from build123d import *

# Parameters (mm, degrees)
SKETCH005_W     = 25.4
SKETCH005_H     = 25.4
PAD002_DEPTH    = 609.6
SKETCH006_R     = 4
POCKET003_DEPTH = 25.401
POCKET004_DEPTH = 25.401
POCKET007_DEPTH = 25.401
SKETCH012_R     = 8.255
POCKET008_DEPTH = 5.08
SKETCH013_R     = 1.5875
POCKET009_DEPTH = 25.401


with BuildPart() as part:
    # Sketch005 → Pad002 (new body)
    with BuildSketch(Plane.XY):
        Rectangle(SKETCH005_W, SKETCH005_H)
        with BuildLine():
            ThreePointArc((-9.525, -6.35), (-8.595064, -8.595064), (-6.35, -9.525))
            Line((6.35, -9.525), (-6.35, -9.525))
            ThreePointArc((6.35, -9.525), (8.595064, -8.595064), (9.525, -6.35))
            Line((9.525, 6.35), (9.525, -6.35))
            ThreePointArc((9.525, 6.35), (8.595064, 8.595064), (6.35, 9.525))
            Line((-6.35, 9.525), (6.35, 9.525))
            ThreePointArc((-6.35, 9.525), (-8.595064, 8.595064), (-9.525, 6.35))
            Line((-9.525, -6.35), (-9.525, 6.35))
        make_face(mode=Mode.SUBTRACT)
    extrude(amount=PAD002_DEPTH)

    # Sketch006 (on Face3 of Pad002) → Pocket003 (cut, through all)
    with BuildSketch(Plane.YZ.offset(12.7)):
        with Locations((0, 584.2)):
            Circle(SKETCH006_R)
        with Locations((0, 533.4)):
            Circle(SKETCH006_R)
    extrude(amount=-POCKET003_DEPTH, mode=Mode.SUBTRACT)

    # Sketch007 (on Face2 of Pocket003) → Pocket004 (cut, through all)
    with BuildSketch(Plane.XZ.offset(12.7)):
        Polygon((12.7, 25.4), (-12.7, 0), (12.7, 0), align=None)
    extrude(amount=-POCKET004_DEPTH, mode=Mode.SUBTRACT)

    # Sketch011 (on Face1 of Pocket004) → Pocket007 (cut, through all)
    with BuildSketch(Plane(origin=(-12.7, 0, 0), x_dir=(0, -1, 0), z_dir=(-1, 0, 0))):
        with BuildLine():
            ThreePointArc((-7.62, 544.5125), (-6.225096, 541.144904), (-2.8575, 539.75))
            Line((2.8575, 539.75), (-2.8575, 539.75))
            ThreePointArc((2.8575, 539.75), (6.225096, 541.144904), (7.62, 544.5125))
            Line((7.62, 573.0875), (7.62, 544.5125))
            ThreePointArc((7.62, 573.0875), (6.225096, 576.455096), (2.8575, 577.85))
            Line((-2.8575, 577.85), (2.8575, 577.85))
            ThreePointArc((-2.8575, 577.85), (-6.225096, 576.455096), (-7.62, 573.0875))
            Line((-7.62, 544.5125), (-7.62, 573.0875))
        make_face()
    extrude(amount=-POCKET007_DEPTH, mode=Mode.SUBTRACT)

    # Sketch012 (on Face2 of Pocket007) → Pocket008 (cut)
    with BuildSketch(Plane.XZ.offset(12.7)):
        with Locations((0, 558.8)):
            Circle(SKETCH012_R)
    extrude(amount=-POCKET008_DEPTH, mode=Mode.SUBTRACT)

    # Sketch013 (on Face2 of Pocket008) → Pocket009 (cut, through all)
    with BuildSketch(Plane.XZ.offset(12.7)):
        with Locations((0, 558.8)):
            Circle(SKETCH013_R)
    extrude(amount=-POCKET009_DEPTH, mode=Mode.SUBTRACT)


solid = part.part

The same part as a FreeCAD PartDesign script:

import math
import FreeCAD as App
import Part
import Sketcher
Q = App.Units.Quantity


def add_polygon(sketch, points):
    """Adds a closed chain of lines whose ends are joined by coincident constraints."""
    first, n = sketch.GeometryCount, len(points)
    for a, b in zip(points, points[1:] + points[:1]):
        sketch.addGeometry(Part.LineSegment(App.Vector(*a, 0), App.Vector(*b, 0)), False)
    for i in range(n):
        sketch.addConstraint(Sketcher.Constraint("Coincident", first + i, 2, first + (i + 1) % n, 1))

doc = App.newDocument("Part")
params = doc.addObject("Spreadsheet::Sheet", "Params")
for row, (alias, value) in enumerate([
    ("sketch1_width", "1 in"),
    ("sketch1_width2", "0.5 in"),
    ("sketch1_radius", "0.125 in"),
    ("pad1_length", "24 in"),
    ("sketch3_width", "1 in"),
    ("sketch4_radius", "0.1875 in"),
    ("sketch4_height", "1.125 in"),
    ("sketch5_diameter", "0.65 in"),
    ("pocket4_length", "0.2 in"),
    ("sketch6_diameter", "0.125 in"),
], start=1):
    params.set(f"A{row}", alias)
    params.set(f"B{row}", "=" + value)
    params.setAlias(f"B{row}", alias)

body = doc.addObject("PartDesign::Body", "Body")

# Sketch on XY plane
sketch1 = body.newObject("Sketcher::SketchObject", "Sketch")
sketch1.AttachmentSupport = (doc.getObject("XY_Plane"), [""])
sketch1.MapMode = "FlatFace"
add_polygon(sketch1, [(-12.7, 12.7), (-12.7, -12.7), (12.7, -12.7), (12.7, 12.7)])  # lines 0-3
sketch1.addGeometry(Part.ArcOfCircle(Part.Circle(App.Vector(-6.3, -6.3, 0), App.Vector(0, 0, 1), 3.2), math.radians(-180), math.radians(-90)), False)  # 4
sketch1.addGeometry(Part.LineSegment(App.Vector(-9.5, -6.3, 0), App.Vector(-9.5, 6.3, 0)), False)  # 5
sketch1.addGeometry(Part.ArcOfCircle(Part.Circle(App.Vector(-6.3, 6.3, 0), App.Vector(0, 0, 1), 3.2), math.radians(90), math.radians(180)), False)  # 6
sketch1.addGeometry(Part.LineSegment(App.Vector(-6.3, 9.5, 0), App.Vector(6.3, 9.5, 0)), False)  # 7
sketch1.addGeometry(Part.ArcOfCircle(Part.Circle(App.Vector(6.3, 6.3, 0), App.Vector(0, 0, 1), 3.2), math.radians(0), math.radians(90)), False)  # 8
sketch1.addGeometry(Part.LineSegment(App.Vector(9.5, 6.3, 0), App.Vector(9.5, -6.3, 0)), False)  # 9
sketch1.addGeometry(Part.ArcOfCircle(Part.Circle(App.Vector(6.3, -6.3, 0), App.Vector(0, 0, 1), 3.2), math.radians(-90), math.radians(0)), False)  # 10
sketch1.addGeometry(Part.LineSegment(App.Vector(6.3, -9.5, 0), App.Vector(-6.3, -9.5, 0)), False)  # 11
sketch1.addConstraint(Sketcher.Constraint("Tangent", 4, 1, 5, 1))
sketch1.addConstraint(Sketcher.Constraint("Tangent", 5, 2, 6, 2))
sketch1.addConstraint(Sketcher.Constraint("Tangent", 6, 1, 7, 1))
sketch1.addConstraint(Sketcher.Constraint("Tangent", 7, 2, 8, 2))
sketch1.addConstraint(Sketcher.Constraint("Tangent", 8, 1, 9, 1))
sketch1.addConstraint(Sketcher.Constraint("Tangent", 9, 2, 10, 2))
sketch1.addConstraint(Sketcher.Constraint("Tangent", 10, 1, 11, 1))
sketch1.addConstraint(Sketcher.Constraint("Tangent", 11, 2, 4, 2))
sketch1.addConstraint(Sketcher.Constraint("Vertical", 0))
sketch1.addConstraint(Sketcher.Constraint("Horizontal", 1))
sketch1.addConstraint(Sketcher.Constraint("Vertical", 2))
sketch1.addConstraint(Sketcher.Constraint("Horizontal", 3))
sketch1.addConstraint(Sketcher.Constraint("Vertical", 5))
sketch1.addConstraint(Sketcher.Constraint("Horizontal", 7))
sketch1.addConstraint(Sketcher.Constraint("Vertical", 9))
sketch1.addConstraint(Sketcher.Constraint("Horizontal", 11))
sketch1.addConstraint(Sketcher.Constraint("Equal", 4, 6))
sketch1.addConstraint(Sketcher.Constraint("Equal", 6, 8))
sketch1.addConstraint(Sketcher.Constraint("Equal", 8, 10))
sketch1.addConstraint(Sketcher.Constraint("Symmetric", 4, 3, 8, 3, -1, 1))
sketch1.addConstraint(Sketcher.Constraint("Symmetric", 0, 2, 2, 2, -1, 1))
sketch1.addConstraint(Sketcher.Constraint("Equal", 3, 0))
sketch1.addConstraint(Sketcher.Constraint("Equal", 11, 5))
sketch1.addConstraint(Sketcher.Constraint("DistanceX", 1, 1, 1, 2, Q("1 in")))
sketch1.addConstraint(Sketcher.Constraint("DistanceX", 7, 1, 7, 2, Q("0.5 in")))
sketch1.addConstraint(Sketcher.Constraint("Radius", 4, Q("0.125 in")))
sketch1.setExpression("Constraints[27]", "Params.sketch1_width")
sketch1.setExpression("Constraints[28]", "Params.sketch1_width2")
sketch1.setExpression("Constraints[29]", "Params.sketch1_radius")
pad1 = body.newObject("PartDesign::Pad", "Pad")
pad1.Profile = sketch1
pad1.setExpression("Length", "Params.pad1_length")

# Sketch on YZ plane
sketch2 = body.newObject("Sketcher::SketchObject", "Sketch001")
sketch2.AttachmentSupport = (doc.getObject("YZ_Plane"), [""])
sketch2.MapMode = "FlatFace"
sketch2.AttachmentOffset = App.Placement(App.Vector(0, 0, 0.5 * 25.4), App.Rotation())
sketch2.addGeometry(Part.Circle(App.Vector(0, 584.2, 0), App.Vector(0, 0, 1), 4), False)
sketch2.addGeometry(Part.Circle(App.Vector(0, 533.4, 0), App.Vector(0, 0, 1), 4), False)
sketch2.addConstraint(Sketcher.Constraint("Equal", 0, 1))
sketch2.addConstraint(Sketcher.Constraint("PointOnObject", 0, 3, -2))
sketch2.addConstraint(Sketcher.Constraint("PointOnObject", 1, 3, -2))
sketch2.addConstraint(Sketcher.Constraint("DistanceY", -1, 1, 0, 3, Q("23 in")))
sketch2.addConstraint(Sketcher.Constraint("DistanceY", -1, 1, 1, 3, Q("21 in")))
sketch2.addConstraint(Sketcher.Constraint("Diameter", 0, Q("8 mm")))
pocket1 = body.newObject("PartDesign::Pocket", "Pocket")
pocket1.Profile = sketch2
pocket1.Type = "ThroughAll"

# Sketch on XZ plane
sketch3 = body.newObject("Sketcher::SketchObject", "Sketch002")
sketch3.AttachmentSupport = (doc.getObject("XZ_Plane"), [""])
sketch3.MapMode = "FlatFace"
sketch3.AttachmentOffset = App.Placement(App.Vector(0, 0, 0.5 * 25.4), App.Rotation())
add_polygon(sketch3, [(13, 25), (-13, 0), (13, 0)])  # lines 0-2
sketch3.addConstraint(Sketcher.Constraint("Horizontal", 1))
sketch3.addConstraint(Sketcher.Constraint("Vertical", 2))
sketch3.addConstraint(Sketcher.Constraint("Symmetric", 0, 2, 1, 2, -1, 1))
sketch3.addConstraint(Sketcher.Constraint("Equal", 1, 2))
sketch3.addConstraint(Sketcher.Constraint("DistanceX", 1, 1, 1, 2, Q("1 in")))
sketch3.setExpression("Constraints[7]", "Params.sketch3_width")
pocket2 = body.newObject("PartDesign::Pocket", "Pocket001")
pocket2.Profile = sketch3
pocket2.Type = "ThroughAll"

# Sketch on YZ plane
sketch4 = body.newObject("Sketcher::SketchObject", "Sketch003")
sketch4.AttachmentSupport = (doc.getObject("YZ_Plane"), [""])
sketch4.MapMode = "FlatFace"
sketch4.AttachmentOffset = App.Placement(App.Vector(0, 0, -0.5 * 25.4), App.Rotation())
sketch4.addGeometry(Part.ArcOfCircle(Part.Circle(App.Vector(2.9, 544.5, 0), App.Vector(0, 0, 1), 4.8), math.radians(-90), math.radians(0)), False)
sketch4.addGeometry(Part.LineSegment(App.Vector(2.9, 539.8, 0), App.Vector(-2.9, 539.8, 0)), False)
sketch4.addGeometry(Part.ArcOfCircle(Part.Circle(App.Vector(-2.9, 544.5, 0), App.Vector(0, 0, 1), 4.8), math.radians(-180), math.radians(-90)), False)
sketch4.addGeometry(Part.LineSegment(App.Vector(-7.6, 544.5, 0), App.Vector(-7.6, 573.1, 0)), False)
sketch4.addGeometry(Part.ArcOfCircle(Part.Circle(App.Vector(-2.9, 573.1, 0), App.Vector(0, 0, 1), 4.8), math.radians(90), math.radians(180)), False)
sketch4.addGeometry(Part.LineSegment(App.Vector(-2.9, 577.9, 0), App.Vector(2.9, 577.9, 0)), False)
sketch4.addGeometry(Part.ArcOfCircle(Part.Circle(App.Vector(2.9, 573.1, 0), App.Vector(0, 0, 1), 4.8), math.radians(0), math.radians(90)), False)
sketch4.addGeometry(Part.LineSegment(App.Vector(7.6, 573.1, 0), App.Vector(7.6, 544.5, 0)), False)
sketch4.addConstraint(Sketcher.Constraint("Tangent", 0, 1, 1, 1))
sketch4.addConstraint(Sketcher.Constraint("Tangent", 1, 2, 2, 2))
sketch4.addConstraint(Sketcher.Constraint("Tangent", 2, 1, 3, 1))
sketch4.addConstraint(Sketcher.Constraint("Tangent", 3, 2, 4, 2))
sketch4.addConstraint(Sketcher.Constraint("Tangent", 4, 1, 5, 1))
sketch4.addConstraint(Sketcher.Constraint("Tangent", 5, 2, 6, 2))
sketch4.addConstraint(Sketcher.Constraint("Tangent", 6, 1, 7, 1))
sketch4.addConstraint(Sketcher.Constraint("Tangent", 7, 2, 0, 2))
sketch4.addConstraint(Sketcher.Constraint("Horizontal", 1))
sketch4.addConstraint(Sketcher.Constraint("Vertical", 3))
sketch4.addConstraint(Sketcher.Constraint("Horizontal", 5))
sketch4.addConstraint(Sketcher.Constraint("Vertical", 7))
sketch4.addConstraint(Sketcher.Constraint("Equal", 0, 2))
sketch4.addConstraint(Sketcher.Constraint("Equal", 2, 4))
sketch4.addConstraint(Sketcher.Constraint("Equal", 4, 6))
sketch4.addConstraint(Sketcher.Constraint("Radius", 0, Q("0.1875 in")))
sketch4.addConstraint(Sketcher.Constraint("DistanceX", 2, 1, -1, 1, Q("0.3 in")))
sketch4.addConstraint(Sketcher.Constraint("DistanceX", -1, 1, 6, 1, Q("0.3 in")))
sketch4.addConstraint(Sketcher.Constraint("DistanceY", 3, 1, 3, 2, Q("1.125 in")))
sketch4.addConstraint(Sketcher.Constraint("DistanceY", -1, 1, 0, 1, Q("21.25 in")))
sketch4.setExpression("Constraints[15]", "Params.sketch4_radius")
sketch4.setExpression("Constraints[18]", "Params.sketch4_height")
pocket3 = body.newObject("PartDesign::Pocket", "Pocket002")
pocket3.Profile = sketch4
pocket3.Type = "ThroughAll"
pocket3.Reversed = True

# Sketch on XZ plane
sketch5 = body.newObject("Sketcher::SketchObject", "Sketch004")
sketch5.AttachmentSupport = (doc.getObject("XZ_Plane"), [""])
sketch5.MapMode = "FlatFace"
sketch5.AttachmentOffset = App.Placement(App.Vector(0, 0, 0.5 * 25.4), App.Rotation())
sketch5.addGeometry(Part.Circle(App.Vector(0, 559, 0), App.Vector(0, 0, 1), 8), False)
sketch5.addConstraint(Sketcher.Constraint("PointOnObject", 0, 3, -2))
sketch5.addConstraint(Sketcher.Constraint("Diameter", 0, Q("0.65 in")))
sketch5.addConstraint(Sketcher.Constraint("DistanceY", -1, 1, 0, 3, Q("22 in")))
sketch5.setExpression("Constraints[1]", "Params.sketch5_diameter")
pocket4 = body.newObject("PartDesign::Pocket", "Pocket003")
pocket4.Profile = sketch5
pocket4.setExpression("Length", "Params.pocket4_length")

# Sketch on XZ plane
sketch6 = body.newObject("Sketcher::SketchObject", "Sketch005")
sketch6.AttachmentSupport = (doc.getObject("XZ_Plane"), [""])
sketch6.MapMode = "FlatFace"
sketch6.AttachmentOffset = App.Placement(App.Vector(0, 0, 0.5 * 25.4), App.Rotation())
sketch6.addGeometry(Part.Circle(App.Vector(0, 558.8, 0), App.Vector(0, 0, 1), 1.6), False)
sketch6.addConstraint(Sketcher.Constraint("PointOnObject", 0, 3, -2))
sketch6.addConstraint(Sketcher.Constraint("Diameter", 0, Q("0.125 in")))
sketch6.addConstraint(Sketcher.Constraint("DistanceY", -1, 1, 0, 3, Q("22 in")))
sketch6.setExpression("Constraints[1]", "Params.sketch6_diameter")
pocket5 = body.newObject("PartDesign::Pocket", "Pocket004")
pocket5.Profile = sketch6
pocket5.Type = "ThroughAll"

doc.recompute()
